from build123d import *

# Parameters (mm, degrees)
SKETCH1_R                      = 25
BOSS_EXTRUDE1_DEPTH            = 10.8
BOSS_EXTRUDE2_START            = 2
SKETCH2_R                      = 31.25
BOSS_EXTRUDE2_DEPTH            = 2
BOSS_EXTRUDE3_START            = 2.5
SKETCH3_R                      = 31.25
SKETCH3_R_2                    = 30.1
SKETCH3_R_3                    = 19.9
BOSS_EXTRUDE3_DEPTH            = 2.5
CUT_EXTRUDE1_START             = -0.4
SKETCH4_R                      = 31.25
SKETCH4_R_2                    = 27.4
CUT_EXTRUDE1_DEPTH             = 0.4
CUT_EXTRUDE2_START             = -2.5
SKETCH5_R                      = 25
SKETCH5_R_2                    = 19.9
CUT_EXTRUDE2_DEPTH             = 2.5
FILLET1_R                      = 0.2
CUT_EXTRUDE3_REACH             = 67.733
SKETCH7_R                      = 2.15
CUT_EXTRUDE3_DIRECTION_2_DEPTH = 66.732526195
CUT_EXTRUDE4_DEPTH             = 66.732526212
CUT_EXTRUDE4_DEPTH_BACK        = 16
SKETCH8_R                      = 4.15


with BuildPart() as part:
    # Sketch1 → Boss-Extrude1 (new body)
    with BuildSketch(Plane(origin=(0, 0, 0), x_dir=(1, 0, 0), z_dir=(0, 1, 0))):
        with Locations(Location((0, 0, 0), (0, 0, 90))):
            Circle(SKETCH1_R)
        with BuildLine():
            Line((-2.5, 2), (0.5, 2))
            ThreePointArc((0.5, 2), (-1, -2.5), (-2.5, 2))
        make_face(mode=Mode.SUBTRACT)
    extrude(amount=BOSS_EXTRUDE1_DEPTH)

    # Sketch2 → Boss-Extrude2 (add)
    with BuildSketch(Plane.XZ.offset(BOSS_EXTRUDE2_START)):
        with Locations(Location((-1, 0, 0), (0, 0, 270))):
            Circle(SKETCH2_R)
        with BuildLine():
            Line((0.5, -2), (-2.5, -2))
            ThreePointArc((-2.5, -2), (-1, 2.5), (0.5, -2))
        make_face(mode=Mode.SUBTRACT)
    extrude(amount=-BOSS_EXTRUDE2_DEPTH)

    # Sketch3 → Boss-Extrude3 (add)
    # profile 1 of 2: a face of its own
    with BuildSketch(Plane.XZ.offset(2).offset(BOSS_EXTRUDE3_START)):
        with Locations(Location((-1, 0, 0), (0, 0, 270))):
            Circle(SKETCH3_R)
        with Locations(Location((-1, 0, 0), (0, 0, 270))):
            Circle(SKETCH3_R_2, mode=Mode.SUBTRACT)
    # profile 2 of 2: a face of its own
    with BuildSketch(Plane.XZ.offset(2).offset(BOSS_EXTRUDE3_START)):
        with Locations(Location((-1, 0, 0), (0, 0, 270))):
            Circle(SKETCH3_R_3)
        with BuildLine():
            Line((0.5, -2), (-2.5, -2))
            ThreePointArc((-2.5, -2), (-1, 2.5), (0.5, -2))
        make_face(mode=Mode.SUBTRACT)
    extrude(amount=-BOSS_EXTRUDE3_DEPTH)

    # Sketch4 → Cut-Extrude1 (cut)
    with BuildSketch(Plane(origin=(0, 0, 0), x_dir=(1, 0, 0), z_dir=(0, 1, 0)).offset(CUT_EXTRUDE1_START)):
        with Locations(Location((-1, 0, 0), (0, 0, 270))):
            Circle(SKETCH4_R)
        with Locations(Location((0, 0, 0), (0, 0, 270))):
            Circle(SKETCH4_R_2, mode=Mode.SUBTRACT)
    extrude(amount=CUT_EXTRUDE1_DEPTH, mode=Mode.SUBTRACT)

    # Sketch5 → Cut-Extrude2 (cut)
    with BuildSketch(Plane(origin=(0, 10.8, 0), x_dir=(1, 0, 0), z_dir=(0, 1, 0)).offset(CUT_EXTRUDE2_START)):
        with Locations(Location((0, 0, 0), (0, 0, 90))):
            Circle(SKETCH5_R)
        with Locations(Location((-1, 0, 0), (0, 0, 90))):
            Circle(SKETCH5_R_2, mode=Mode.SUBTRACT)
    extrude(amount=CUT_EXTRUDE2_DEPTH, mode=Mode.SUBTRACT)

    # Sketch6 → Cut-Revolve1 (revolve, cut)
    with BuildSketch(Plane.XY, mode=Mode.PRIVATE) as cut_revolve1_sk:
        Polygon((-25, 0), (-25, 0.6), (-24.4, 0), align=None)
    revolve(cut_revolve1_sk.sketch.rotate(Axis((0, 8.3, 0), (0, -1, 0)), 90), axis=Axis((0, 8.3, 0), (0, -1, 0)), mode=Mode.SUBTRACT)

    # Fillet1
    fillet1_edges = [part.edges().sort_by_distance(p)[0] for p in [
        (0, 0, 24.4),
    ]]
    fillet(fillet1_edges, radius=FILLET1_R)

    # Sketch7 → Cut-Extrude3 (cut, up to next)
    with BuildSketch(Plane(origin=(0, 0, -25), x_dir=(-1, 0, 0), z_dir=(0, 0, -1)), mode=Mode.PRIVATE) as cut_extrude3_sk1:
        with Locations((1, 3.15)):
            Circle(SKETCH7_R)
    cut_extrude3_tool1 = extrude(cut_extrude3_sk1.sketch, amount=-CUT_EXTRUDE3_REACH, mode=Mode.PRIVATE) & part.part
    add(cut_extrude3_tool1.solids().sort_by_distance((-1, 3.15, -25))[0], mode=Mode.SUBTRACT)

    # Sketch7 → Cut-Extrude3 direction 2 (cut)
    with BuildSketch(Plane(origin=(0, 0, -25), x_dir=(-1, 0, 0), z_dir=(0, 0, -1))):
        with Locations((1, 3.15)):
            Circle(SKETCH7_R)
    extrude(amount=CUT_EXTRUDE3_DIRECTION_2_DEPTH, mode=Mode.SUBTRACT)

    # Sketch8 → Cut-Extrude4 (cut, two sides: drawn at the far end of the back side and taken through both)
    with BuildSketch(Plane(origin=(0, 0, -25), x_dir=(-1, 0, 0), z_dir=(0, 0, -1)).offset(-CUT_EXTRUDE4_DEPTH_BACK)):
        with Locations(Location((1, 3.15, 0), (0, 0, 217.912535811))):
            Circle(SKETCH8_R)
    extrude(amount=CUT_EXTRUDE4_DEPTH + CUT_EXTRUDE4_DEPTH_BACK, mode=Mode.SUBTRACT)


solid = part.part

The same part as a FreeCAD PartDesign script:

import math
import FreeCAD as App
import Part
import Sketcher

V = App.Vector
Q = App.Units.Quantity


def edges_at(feature, points):
    """Names of the edges that pass closest to the given points."""
    edges = feature.Shape.Edges
    near = lambda p: min(range(len(edges)), key=lambda i: edges[i].distToShape(Part.Vertex(*p))[0])
    return sorted({f"Edge{near(p) + 1}" for p in points})


def add_polygon(sketch, points):
    """Adds a closed chain of lines whose ends are joined by coincident constraints."""
    first, n = sketch.GeometryCount, len(points)
    for a, b in zip(points, points[1:] + points[:1]):
        sketch.addGeometry(Part.LineSegment(App.Vector(*a, 0), App.Vector(*b, 0)), False)
    for i in range(n):
        sketch.addConstraint(Sketcher.Constraint("Coincident", first + i, 2, first + (i + 1) % n, 1))

doc = App.newDocument("Part")
params = doc.addObject("Spreadsheet::Sheet", "Params")
for row, (alias, value) in enumerate([
    ("sketch1_diameter", "50 mm"),
    ("sketch1_radius", "2.5 mm"),
    ("sketch1_width", "3 mm"),
    ("pad1_length", "10.8 mm"),
    ("sketch2_diameter", "62.5 mm"),
    ("sketch2_radius", "2.5 mm"),
    ("sketch2_width", "3 mm"),
    ("pad2_length", "2 mm"),
    ("sketch3_diameter", "62.5 mm"),
    ("sketch3_diameter2", "60.2 mm"),
    ("sketch3_diameter3", "39.8 mm"),
    ("sketch3_radius", "2.5 mm"),
    ("sketch3_width", "3 mm"),
    ("pad3_length", "2.5 mm"),
    ("sketch4_diameter", "62.5 mm"),
    ("sketch4_diameter2", "54.8 mm"),
    ("pocket1_length", "0.4 mm"),
    ("sketch5_diameter", "50 mm"),
    ("sketch5_diameter2", "39.8 mm"),
    ("pocket2_length", "2.5 mm"),
    ("sketch6_width", "0.6 mm"),
    ("groove_angle", "360 deg"),
    ("fillet_radius", "0.2 mm"),
    ("sketch7_diameter", "4.3 mm"),
    ("pocket3_length", "23.724265 mm"),
    ("sketch8_diameter", "4.3 mm"),
    ("pocket4_length", "66.732526 mm"),
    ("sketch9_diameter", "8.3 mm"),
    ("pocket5_length", "66.732526 mm"),
    ("pocket5_length2", "16 mm"),
], start=1):
    params.set(f"A{row}", alias)
    params.set(f"B{row}", "=" + value)
    params.setAlias(f"B{row}", alias)

body = doc.addObject("PartDesign::Body", "Body")

# Sketch on XZ plane
sketch1 = body.newObject("Sketcher::SketchObject", "Sketch")
sketch1.AttachmentSupport = (doc.getObject("XZ_Plane"), [""])
sketch1.MapMode = "FlatFace"
sketch1.addGeometry([
    Part.Circle(V(0, 0, 0), V(0, 0, 1), 25),
    Part.ArcOfCircle(Part.Circle(V(-1, 0, 0), V(0, 0, 1), 2.5), math.radians(-53), math.radians(233)),
    Part.LineSegment(V(-2.5, -2, 0), V(0.5, -2, 0)),
], False)
sketch1.addConstraint([
    Sketcher.Constraint("Coincident", 1, 1, 2, 2),
    Sketcher.Constraint("Coincident", 2, 1, 1, 2),
    Sketcher.Constraint("Horizontal", 2),
    Sketcher.Constraint("Coincident", 0, 3, -1, 1),
    Sketcher.Constraint("PointOnObject", 1, 3, -1),
    Sketcher.Constraint("Diameter", 0, Q("50 mm")),
    Sketcher.Constraint("Radius", 1, Q("2.5 mm")),
    Sketcher.Constraint("DistanceX", 2, 1, 2, 2, Q("3 mm")),
    Sketcher.Constraint("DistanceX", 1, 3, -1, 1, Q("1 mm")),
])
sketch1.setExpression("Constraints[5]", "Params.sketch1_diameter")
sketch1.setExpression("Constraints[6]", "Params.sketch1_radius")
sketch1.setExpression("Constraints[7]", "Params.sketch1_width")
pad1 = body.newObject("PartDesign::Pad", "Pad")
pad1.Profile = sketch1
pad1.setExpression("Length", "Params.pad1_length")
pad1.Reversed = True

# Sketch on XZ plane
sketch2 = body.newObject("Sketcher::SketchObject", "Sketch001")
sketch2.AttachmentSupport = (doc.getObject("XZ_Plane"), [""])
sketch2.MapMode = "FlatFace"
sketch2.AttachmentOffset = App.Placement(V(0, 0, 2), App.Rotation())
sketch2.addGeometry([
    Part.Circle(V(-1, 0, 0), V(0, 0, 1), 31.2),
    Part.ArcOfCircle(Part.Circle(V(-1, 0, 0), V(0, 0, 1), 2.5), math.radians(-53), math.radians(233)),
    Part.LineSegment(V(0.5, -2, 0), V(-2.5, -2, 0)),
], False)
sketch2.addConstraint([
    Sketcher.Constraint("Coincident", 1, 1, 2, 1),
    Sketcher.Constraint("Coincident", 2, 2, 1, 2),
    Sketcher.Constraint("Horizontal", 2),
    Sketcher.Constraint("Coincident", 1, 3, 0, 3),
    Sketcher.Constraint("PointOnObject", 0, 3, -1),
    Sketcher.Constraint("Diameter", 0, Q("62.5 mm")),
    Sketcher.Constraint("Radius", 1, Q("2.5 mm")),
    Sketcher.Constraint("DistanceX", 2, 2, 2, 1, Q("3 mm")),
    Sketcher.Constraint("DistanceX", 0, 3, -1, 1, Q("1 mm")),
])
sketch2.setExpression("Constraints[5]", "Params.sketch2_diameter")
sketch2.setExpression("Constraints[6]", "Params.sketch2_radius")
sketch2.setExpression("Constraints[7]", "Params.sketch2_width")
pad2 = body.newObject("PartDesign::Pad", "Pad001")
pad2.Profile = sketch2
pad2.setExpression("Length", "Params.pad2_length")
pad2.Reversed = True

# Sketch on XZ plane
sketch3 = body.newObject("Sketcher::SketchObject", "Sketch002")
sketch3.AttachmentSupport = (doc.getObject("XZ_Plane"), [""])
sketch3.MapMode = "FlatFace"
sketch3.AttachmentOffset = App.Placement(V(0, 0, 4.5), App.Rotation())
sketch3.addGeometry([
    Part.Circle(V(-1, 0, 0), V(0, 0, 1), 31.2),  # 0
    Part.Circle(V(-1, 0, 0), V(0, 0, 1), 30.1),  # 1
    Part.Circle(V(-1, 0, 0), V(0, 0, 1), 19.9),  # 2
    Part.ArcOfCircle(Part.Circle(V(-1, 0, 0), V(0, 0, 1), 2.5), math.radians(-53), math.radians(233)),  # 3
    Part.LineSegment(V(0.5, -2, 0), V(-2.5, -2, 0)),  # 4
], False)
sketch3.addConstraint([
    Sketcher.Constraint("Coincident", 3, 1, 4, 1),
    Sketcher.Constraint("Coincident", 4, 2, 3, 2),
    Sketcher.Constraint("Horizontal", 4),
    Sketcher.Constraint("Coincident", 1, 3, 0, 3),
    Sketcher.Constraint("Coincident", 2, 3, 0, 3),
    Sketcher.Constraint("Coincident", 3, 3, 0, 3),
    Sketcher.Constraint("PointOnObject", 0, 3, -1),
    Sketcher.Constraint("Diameter", 0, Q("62.5 mm")),
    Sketcher.Constraint("Diameter", 1, Q("60.2 mm")),
    Sketcher.Constraint("Diameter", 2, Q("39.8 mm")),
    Sketcher.Constraint("Radius", 3, Q("2.5 mm")),
    Sketcher.Constraint("DistanceX", 4, 2, 4, 1, Q("3 mm")),
    Sketcher.Constraint("DistanceX", 0, 3, -1, 1, Q("1 mm")),
])
sketch3.setExpression("Constraints[7]", "Params.sketch3_diameter")
sketch3.setExpression("Constraints[8]", "Params.sketch3_diameter2")
sketch3.setExpression("Constraints[9]", "Params.sketch3_diameter3")
sketch3.setExpression("Constraints[10]", "Params.sketch3_radius")
sketch3.setExpression("Constraints[11]", "Params.sketch3_width")
pad3 = body.newObject("PartDesign::Pad", "Pad002")
pad3.Profile = sketch3
pad3.setExpression("Length", "Params.pad3_length")
pad3.Reversed = True

# Sketch on XZ plane
sketch4 = body.newObject("Sketcher::SketchObject", "Sketch003")
sketch4.AttachmentSupport = (doc.getObject("XZ_Plane"), [""])
sketch4.MapMode = "FlatFace"
sketch4.AttachmentOffset = App.Placement(V(0, 0, 0.4), App.Rotation())
sketch4.addGeometry([
    Part.Circle(V(-1, 0, 0), V(0, 0, 1), 31),
    Part.Circle(V(0, 0, 0), V(0, 0, 1), 27),
], False)
sketch4.addConstraint([
    Sketcher.Constraint("Coincident", 1, 3, -1, 1),
    Sketcher.Constraint("PointOnObject", 0, 3, -1),
    Sketcher.Constraint("Diameter", 0, Q("62.5 mm")),
    Sketcher.Constraint("Diameter", 1, Q("54.8 mm")),
    Sketcher.Constraint("DistanceX", 0, 3, -1, 1, Q("1 mm")),
])
sketch4.setExpression("Constraints[2]", "Params.sketch4_diameter")
sketch4.setExpression("Constraints[3]", "Params.sketch4_diameter2")
pocket1 = body.newObject("PartDesign::Pocket", "Pocket")
pocket1.Profile = sketch4
pocket1.setExpression("Length", "Params.pocket1_length")

# Sketch on XZ plane
sketch5 = body.newObject("Sketcher::SketchObject", "Sketch004")
sketch5.AttachmentSupport = (doc.getObject("XZ_Plane"), [""])
sketch5.MapMode = "FlatFace"
sketch5.AttachmentOffset = App.Placement(V(0, 0, -8.3), App.Rotation())
sketch5.addGeometry([
    Part.Circle(V(0, 0, 0), V(0, 0, 1), 25),
    Part.Circle(V(-1, 0, 0), V(0, 0, 1), 20),
], False)
sketch5.addConstraint([
    Sketcher.Constraint("Coincident", 0, 3, -1, 1),
    Sketcher.Constraint("PointOnObject", 1, 3, -1),
    Sketcher.Constraint("Diameter", 0, Q("50 mm")),
    Sketcher.Constraint("Diameter", 1, Q("39.8 mm")),
    Sketcher.Constraint("DistanceX", 1, 3, -1, 1, Q("1 mm")),
])
sketch5.setExpression("Constraints[2]", "Params.sketch5_diameter")
sketch5.setExpression("Constraints[3]", "Params.sketch5_diameter2")
pocket2 = body.newObject("PartDesign::Pocket", "Pocket001")
pocket2.Profile = sketch5
pocket2.setExpression("Length", "Params.pocket2_length")

# Sketch on XY plane
sketch6 = body.newObject("Sketcher::SketchObject", "Sketch005")
sketch6.AttachmentSupport = (doc.getObject("XY_Plane"), [""])
sketch6.MapMode = "FlatFace"
add_polygon(sketch6, [(-25, 0.6), (-25, 0), (-24.4, 0)])  # lines 0-2
sketch6.addConstraint([
    Sketcher.Constraint("Vertical", 0),
    Sketcher.Constraint("Horizontal", 1),
    Sketcher.Constraint("PointOnObject", 0, 2, -1),
    Sketcher.Constraint("Equal", 1, 0),
    Sketcher.Constraint("DistanceX", 1, 1, 1, 2, Q("0.6 mm")),
    Sketcher.Constraint("DistanceX", 0, 2, -1, 1, Q("25 mm")),
])
sketch6.setExpression("Constraints[7]", "Params.sketch6_width")
groove = body.newObject("PartDesign::Groove", "Groove")
groove.Profile = sketch6
groove.ReferenceAxis = (sketch6, ["V_Axis"])
groove.setExpression("Angle", "Params.groove_angle")
doc.recompute()

fillet = body.newObject("PartDesign::Fillet", "Fillet")
fillet.Base = (groove, edges_at(groove, [(0, 0, 24.4)]))
fillet.setExpression("Radius", "Params.fillet_radius")

# Sketch on XY plane
sketch7 = body.newObject("Sketcher::SketchObject", "Sketch006")
sketch7.AttachmentSupport = (doc.getObject("XY_Plane"), [""])
sketch7.MapMode = "FlatFace"
sketch7.AttachmentOffset = App.Placement(V(0, 0, -25), App.Rotation())
sketch7.addGeometry(Part.Circle(V(-1, 3.1, 0), V(0, 0, 1), 2.1), False)
sketch7.addConstraint([
    Sketcher.Constraint("Diameter", 0, Q("4.3 mm")),
    Sketcher.Constraint("DistanceX", 0, 3, -1, 1, Q("1 mm")),
    Sketcher.Constraint("DistanceY", -1, 1, 0, 3, Q("3.15 mm")),
])
sketch7.setExpression("Constraints[0]", "Params.sketch7_diameter")
pocket3 = body.newObject("PartDesign::Pocket", "Pocket002")
pocket3.Profile = sketch7
pocket3.setExpression("Length", "Params.pocket3_length")
pocket3.Reversed = True

# Sketch on XY plane
sketch8 = body.newObject("Sketcher::SketchObject", "Sketch007")
sketch8.AttachmentSupport = (doc.getObject("XY_Plane"), [""])
sketch8.MapMode = "FlatFace"
sketch8.AttachmentOffset = App.Placement(V(0, 0, -25), App.Rotation())
sketch8.addGeometry(Part.Circle(V(-1, 3.1, 0), V(0, 0, 1), 2.1), False)
sketch8.addConstraint([
    Sketcher.Constraint("Diameter", 0, Q("4.3 mm")),
    Sketcher.Constraint("DistanceX", 0, 3, -1, 1, Q("1 mm")),
    Sketcher.Constraint("DistanceY", -1, 1, 0, 3, Q("3.15 mm")),
])
sketch8.setExpression("Constraints[0]", "Params.sketch8_diameter")
pocket4 = body.newObject("PartDesign::Pocket", "Pocket003")
pocket4.Profile = sketch8
pocket4.setExpression("Length", "Params.pocket4_length")

# Sketch on XY plane
sketch9 = body.newObject("Sketcher::SketchObject", "Sketch008")
sketch9.AttachmentSupport = (doc.getObject("XY_Plane"), [""])
sketch9.MapMode = "FlatFace"
sketch9.AttachmentOffset = App.Placement(V(0, 0, -25), App.Rotation())
sketch9.addGeometry(Part.Circle(V(-1, 3.1, 0), V(0, 0, 1), 4.2), False)
sketch9.addConstraint([
    Sketcher.Constraint("Diameter", 0, Q("8.3 mm")),
    Sketcher.Constraint("DistanceX", 0, 3, -1, 1, Q("1 mm")),
    Sketcher.Constraint("DistanceY", -1, 1, 0, 3, Q("3.15 mm")),
])
sketch9.setExpression("Constraints[0]", "Params.sketch9_diameter")
pocket5 = body.newObject("PartDesign::Pocket", "Pocket004")
pocket5.Profile = sketch9
pocket5.Type = "TwoLengths"
pocket5.setExpression("Length", "Params.pocket5_length")
pocket5.setExpression("Length2", "Params.pocket5_length2")

doc.recompute()
